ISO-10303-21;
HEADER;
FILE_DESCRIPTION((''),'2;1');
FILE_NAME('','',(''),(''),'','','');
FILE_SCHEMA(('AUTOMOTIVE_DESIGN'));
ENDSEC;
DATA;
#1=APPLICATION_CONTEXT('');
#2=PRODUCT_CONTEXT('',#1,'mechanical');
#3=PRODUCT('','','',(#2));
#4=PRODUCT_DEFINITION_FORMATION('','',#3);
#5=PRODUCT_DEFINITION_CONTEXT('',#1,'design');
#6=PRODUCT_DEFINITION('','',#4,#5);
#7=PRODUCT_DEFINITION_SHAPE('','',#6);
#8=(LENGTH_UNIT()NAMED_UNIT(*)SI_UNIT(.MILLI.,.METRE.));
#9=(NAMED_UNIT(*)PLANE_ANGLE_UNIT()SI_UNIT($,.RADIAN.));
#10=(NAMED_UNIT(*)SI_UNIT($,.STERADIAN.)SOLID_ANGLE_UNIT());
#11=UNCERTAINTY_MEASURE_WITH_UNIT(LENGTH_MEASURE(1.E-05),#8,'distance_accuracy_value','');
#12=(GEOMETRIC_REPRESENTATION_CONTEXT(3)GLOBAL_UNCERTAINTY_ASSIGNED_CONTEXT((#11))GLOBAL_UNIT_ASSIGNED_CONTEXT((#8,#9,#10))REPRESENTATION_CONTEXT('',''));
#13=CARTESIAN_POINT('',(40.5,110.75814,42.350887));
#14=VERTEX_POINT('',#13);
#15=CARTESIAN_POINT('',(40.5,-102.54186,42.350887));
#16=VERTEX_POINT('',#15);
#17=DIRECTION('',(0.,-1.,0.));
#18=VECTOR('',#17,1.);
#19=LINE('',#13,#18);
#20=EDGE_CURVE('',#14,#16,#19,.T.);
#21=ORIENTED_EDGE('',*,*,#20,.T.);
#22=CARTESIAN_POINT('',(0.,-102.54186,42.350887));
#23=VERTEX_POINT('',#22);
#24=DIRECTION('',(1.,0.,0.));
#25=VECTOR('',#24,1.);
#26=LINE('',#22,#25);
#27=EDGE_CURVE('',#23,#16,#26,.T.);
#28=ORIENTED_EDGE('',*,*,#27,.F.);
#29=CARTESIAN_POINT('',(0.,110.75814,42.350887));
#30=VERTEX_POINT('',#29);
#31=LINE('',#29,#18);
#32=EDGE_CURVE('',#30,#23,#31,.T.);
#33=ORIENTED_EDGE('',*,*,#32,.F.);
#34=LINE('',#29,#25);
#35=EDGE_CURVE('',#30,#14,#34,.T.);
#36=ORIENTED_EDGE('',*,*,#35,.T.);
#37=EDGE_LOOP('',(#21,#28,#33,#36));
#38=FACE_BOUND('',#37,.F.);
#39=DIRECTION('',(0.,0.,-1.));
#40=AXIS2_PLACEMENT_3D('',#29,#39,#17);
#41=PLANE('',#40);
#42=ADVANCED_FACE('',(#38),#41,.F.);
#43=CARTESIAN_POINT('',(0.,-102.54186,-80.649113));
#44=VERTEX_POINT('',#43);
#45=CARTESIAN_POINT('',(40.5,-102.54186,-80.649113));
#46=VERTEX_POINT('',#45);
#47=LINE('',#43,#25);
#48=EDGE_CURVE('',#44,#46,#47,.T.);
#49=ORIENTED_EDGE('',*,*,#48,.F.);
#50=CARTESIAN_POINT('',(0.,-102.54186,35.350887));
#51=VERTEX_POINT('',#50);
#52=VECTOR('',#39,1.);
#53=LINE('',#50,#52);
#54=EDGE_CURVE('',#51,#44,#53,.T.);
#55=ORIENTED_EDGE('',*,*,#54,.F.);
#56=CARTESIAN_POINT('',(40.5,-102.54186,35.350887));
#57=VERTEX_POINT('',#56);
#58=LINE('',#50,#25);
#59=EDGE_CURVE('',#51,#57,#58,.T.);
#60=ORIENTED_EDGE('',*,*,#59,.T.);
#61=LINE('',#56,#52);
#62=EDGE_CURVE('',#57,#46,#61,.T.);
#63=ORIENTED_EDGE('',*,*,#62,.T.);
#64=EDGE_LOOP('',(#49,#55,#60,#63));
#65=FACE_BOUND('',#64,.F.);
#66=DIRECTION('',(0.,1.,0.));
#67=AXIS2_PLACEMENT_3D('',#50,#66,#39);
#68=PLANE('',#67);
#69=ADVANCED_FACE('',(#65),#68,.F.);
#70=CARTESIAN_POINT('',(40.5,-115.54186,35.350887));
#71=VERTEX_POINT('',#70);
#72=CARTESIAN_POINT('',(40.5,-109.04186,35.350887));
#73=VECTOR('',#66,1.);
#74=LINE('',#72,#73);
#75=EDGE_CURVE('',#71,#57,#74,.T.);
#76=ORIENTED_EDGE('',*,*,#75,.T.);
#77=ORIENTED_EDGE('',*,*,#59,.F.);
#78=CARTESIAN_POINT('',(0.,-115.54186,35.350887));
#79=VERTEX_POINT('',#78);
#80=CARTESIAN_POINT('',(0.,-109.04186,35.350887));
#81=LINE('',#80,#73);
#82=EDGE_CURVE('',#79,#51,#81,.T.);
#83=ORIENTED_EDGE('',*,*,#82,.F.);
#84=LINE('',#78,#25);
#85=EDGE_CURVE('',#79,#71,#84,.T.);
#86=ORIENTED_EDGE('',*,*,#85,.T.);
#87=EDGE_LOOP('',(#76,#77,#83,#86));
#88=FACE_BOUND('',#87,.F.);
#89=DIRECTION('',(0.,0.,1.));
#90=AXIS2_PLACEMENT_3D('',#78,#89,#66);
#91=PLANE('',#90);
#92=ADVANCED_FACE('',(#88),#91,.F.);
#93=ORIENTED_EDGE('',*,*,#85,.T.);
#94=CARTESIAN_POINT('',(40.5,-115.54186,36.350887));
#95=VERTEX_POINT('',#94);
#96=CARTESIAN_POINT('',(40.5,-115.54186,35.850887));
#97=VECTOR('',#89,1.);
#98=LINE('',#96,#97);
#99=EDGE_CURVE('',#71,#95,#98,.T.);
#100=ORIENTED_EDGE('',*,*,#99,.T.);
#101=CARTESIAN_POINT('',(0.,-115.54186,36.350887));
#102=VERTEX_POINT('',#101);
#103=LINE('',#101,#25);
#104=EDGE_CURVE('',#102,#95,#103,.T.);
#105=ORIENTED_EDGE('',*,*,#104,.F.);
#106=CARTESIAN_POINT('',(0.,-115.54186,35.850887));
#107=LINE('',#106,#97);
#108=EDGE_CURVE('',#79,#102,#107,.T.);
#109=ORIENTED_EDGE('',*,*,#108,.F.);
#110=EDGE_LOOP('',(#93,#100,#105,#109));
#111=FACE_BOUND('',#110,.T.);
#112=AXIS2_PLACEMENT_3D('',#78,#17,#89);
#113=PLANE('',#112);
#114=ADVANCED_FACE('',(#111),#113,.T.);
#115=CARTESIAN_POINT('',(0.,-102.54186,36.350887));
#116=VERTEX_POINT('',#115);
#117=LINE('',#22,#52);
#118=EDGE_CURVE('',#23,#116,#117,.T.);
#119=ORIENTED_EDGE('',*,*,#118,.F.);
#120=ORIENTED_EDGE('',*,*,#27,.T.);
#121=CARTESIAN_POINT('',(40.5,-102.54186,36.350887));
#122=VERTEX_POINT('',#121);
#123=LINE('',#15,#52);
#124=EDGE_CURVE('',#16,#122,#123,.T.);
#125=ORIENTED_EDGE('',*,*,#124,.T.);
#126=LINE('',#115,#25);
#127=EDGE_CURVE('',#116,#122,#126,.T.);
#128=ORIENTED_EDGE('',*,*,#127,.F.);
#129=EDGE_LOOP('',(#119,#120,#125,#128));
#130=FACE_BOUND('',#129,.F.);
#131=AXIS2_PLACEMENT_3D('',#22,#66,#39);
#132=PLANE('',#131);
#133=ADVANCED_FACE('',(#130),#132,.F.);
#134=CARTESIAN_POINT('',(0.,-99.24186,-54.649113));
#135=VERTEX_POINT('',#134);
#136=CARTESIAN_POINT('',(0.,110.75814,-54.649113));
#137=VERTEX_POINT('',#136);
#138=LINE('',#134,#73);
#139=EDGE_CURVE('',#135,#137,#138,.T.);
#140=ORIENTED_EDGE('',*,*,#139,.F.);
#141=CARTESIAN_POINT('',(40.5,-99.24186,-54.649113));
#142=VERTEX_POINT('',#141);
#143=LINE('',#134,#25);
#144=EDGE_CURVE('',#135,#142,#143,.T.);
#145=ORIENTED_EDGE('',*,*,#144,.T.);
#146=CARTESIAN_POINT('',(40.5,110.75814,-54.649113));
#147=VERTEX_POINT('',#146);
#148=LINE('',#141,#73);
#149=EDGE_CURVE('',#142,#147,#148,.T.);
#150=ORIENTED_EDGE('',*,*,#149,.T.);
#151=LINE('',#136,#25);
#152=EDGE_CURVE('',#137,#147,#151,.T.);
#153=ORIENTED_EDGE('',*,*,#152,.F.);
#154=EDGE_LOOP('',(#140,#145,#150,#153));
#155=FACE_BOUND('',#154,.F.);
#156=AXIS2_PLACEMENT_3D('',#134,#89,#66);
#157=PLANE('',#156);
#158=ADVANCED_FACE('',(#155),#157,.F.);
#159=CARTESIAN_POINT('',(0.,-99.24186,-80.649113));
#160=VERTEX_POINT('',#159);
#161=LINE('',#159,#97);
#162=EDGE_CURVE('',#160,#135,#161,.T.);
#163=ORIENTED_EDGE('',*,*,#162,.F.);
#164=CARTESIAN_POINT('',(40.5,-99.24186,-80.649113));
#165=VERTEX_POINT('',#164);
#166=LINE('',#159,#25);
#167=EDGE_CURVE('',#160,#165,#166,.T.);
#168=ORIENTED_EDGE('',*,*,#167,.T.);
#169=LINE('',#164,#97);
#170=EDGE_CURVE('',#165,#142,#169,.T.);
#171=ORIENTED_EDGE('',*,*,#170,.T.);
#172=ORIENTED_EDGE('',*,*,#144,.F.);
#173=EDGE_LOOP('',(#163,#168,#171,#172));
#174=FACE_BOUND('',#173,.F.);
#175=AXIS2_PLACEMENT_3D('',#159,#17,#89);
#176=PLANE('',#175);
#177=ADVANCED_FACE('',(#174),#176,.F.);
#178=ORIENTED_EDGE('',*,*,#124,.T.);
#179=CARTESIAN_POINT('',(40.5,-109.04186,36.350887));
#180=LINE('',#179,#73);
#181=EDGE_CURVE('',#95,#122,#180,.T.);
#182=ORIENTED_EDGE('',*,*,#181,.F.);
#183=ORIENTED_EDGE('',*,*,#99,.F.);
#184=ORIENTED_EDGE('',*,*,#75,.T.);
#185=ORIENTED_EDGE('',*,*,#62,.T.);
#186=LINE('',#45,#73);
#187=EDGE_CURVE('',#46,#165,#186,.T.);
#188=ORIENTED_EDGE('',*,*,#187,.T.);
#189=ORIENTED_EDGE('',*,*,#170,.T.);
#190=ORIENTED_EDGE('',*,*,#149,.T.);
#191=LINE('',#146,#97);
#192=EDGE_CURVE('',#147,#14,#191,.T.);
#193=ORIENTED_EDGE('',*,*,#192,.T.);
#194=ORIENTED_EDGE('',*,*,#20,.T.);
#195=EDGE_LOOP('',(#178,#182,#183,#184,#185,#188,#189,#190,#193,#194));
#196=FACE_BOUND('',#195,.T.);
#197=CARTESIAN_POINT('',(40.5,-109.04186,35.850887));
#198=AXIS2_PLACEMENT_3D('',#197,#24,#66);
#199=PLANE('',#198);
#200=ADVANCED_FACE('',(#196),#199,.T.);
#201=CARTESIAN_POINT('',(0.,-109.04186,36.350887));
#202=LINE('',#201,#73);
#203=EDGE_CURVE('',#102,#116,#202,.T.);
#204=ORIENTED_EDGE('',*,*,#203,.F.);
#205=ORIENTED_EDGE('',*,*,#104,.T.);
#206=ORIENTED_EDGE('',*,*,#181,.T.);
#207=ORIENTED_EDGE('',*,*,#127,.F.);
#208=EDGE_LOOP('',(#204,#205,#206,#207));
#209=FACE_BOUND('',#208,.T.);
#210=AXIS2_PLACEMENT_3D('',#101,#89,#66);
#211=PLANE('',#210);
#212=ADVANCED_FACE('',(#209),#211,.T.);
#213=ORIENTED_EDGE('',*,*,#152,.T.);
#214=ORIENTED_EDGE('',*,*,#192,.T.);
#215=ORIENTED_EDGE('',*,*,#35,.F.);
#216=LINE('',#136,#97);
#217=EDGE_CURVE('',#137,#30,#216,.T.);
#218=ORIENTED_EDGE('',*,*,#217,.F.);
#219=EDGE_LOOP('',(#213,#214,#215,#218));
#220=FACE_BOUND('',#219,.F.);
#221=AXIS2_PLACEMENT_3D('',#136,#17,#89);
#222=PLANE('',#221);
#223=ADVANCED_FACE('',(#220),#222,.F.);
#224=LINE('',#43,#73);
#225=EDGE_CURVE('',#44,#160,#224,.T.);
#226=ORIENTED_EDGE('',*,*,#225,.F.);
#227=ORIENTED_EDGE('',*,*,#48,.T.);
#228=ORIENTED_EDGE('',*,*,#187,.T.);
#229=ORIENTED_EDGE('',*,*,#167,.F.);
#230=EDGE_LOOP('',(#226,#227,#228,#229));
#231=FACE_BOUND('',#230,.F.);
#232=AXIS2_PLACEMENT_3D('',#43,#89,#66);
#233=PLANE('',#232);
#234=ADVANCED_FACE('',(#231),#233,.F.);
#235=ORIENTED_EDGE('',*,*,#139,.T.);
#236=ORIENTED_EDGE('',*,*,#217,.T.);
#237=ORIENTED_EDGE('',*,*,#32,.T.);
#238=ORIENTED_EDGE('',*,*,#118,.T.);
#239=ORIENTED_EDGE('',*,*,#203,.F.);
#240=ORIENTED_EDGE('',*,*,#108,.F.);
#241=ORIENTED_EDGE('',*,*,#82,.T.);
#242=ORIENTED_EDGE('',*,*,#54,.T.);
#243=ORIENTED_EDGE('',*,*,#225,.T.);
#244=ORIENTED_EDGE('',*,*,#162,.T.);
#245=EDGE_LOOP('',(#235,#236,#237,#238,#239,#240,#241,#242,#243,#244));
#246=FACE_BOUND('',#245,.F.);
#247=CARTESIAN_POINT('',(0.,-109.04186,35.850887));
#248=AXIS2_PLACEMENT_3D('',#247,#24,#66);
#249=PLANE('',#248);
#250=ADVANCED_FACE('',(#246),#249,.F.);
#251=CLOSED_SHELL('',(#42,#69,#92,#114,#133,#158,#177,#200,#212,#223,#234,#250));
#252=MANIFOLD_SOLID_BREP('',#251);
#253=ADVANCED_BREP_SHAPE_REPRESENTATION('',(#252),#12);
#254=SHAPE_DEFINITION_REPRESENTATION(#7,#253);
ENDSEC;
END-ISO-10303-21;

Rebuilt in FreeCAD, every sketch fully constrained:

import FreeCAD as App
import Part
import Sketcher
from FreeCAD import Vector
Q = App.Units.Quantity


def add_polygon(sketch, points):
    """Adds a closed chain of lines whose ends are joined by coincident constraints."""
    first, n = sketch.GeometryCount, len(points)
    for a, b in zip(points, points[1:] + points[:1]):
        sketch.addGeometry(Part.LineSegment(App.Vector(*a, 0), App.Vector(*b, 0)), False)
    for i in range(n):
        sketch.addConstraint(Sketcher.Constraint("Coincident", first + i, 2, first + (i + 1) % n, 1))

doc = App.newDocument("Part")
body = doc.addObject("PartDesign::Body", "Body")

# Sketch on YZ plane
sketch1 = body.newObject("Sketcher::SketchObject", "Sketch")
sketch1.AttachmentSupport = (doc.getObject("YZ_Plane"), [""])
sketch1.MapMode = "FlatFace"
add_polygon(sketch1, [(-115.5, 36.4), (-115.5, 35.4), (-102.5, 35.4), (-102.5, -80.6), (-99.2, -80.6), (-99.2, -54.6), (110.8, -54.6), (110.8, 42.4), (-102.5, 42.4), (-102.5, 36.4)])  # lines 0-9
sketch1.addConstraint([
    Sketcher.Constraint("Vertical", 0),
    Sketcher.Constraint("Horizontal", 1),
    Sketcher.Constraint("Vertical", 2),
    Sketcher.Constraint("Horizontal", 3),
    Sketcher.Constraint("Vertical", 4),
    Sketcher.Constraint("Horizontal", 5),
    Sketcher.Constraint("Vertical", 6),
    Sketcher.Constraint("Horizontal", 7),
    Sketcher.Constraint("Vertical", 8),
    Sketcher.Constraint("Horizontal", 9),
    Sketcher.Constraint("Vertical", 2, 2, 7, 2),
    Sketcher.Constraint("DistanceX", 1, 1, 1, 2, Q("13 mm")),
    Sketcher.Constraint("DistanceX", 5, 1, 5, 2, Q("210 mm")),
    Sketcher.Constraint("DistanceY", 0, 2, 0, 1, Q("1 mm")),
    Sketcher.Constraint("DistanceY", 2, 2, 2, 1, Q("116 mm")),
    Sketcher.Constraint("DistanceY", 4, 1, 4, 2, Q("26 mm")),
    Sketcher.Constraint("DistanceY", 6, 1, 6, 2, Q("97 mm")),
    Sketcher.Constraint("DistanceX", 3, 1, 3, 2, Q("3.3 mm")),
    Sketcher.Constraint("DistanceX", 0, 2, -1, 1, Q("115.54186 mm")),
    Sketcher.Constraint("DistanceY", -1, 1, 0, 2, Q("35.350887 mm")),
])
pad1 = body.newObject("PartDesign::Pad", "Pad")
pad1.Profile = sketch1
pad1.Length = 40.5

doc.recompute()
